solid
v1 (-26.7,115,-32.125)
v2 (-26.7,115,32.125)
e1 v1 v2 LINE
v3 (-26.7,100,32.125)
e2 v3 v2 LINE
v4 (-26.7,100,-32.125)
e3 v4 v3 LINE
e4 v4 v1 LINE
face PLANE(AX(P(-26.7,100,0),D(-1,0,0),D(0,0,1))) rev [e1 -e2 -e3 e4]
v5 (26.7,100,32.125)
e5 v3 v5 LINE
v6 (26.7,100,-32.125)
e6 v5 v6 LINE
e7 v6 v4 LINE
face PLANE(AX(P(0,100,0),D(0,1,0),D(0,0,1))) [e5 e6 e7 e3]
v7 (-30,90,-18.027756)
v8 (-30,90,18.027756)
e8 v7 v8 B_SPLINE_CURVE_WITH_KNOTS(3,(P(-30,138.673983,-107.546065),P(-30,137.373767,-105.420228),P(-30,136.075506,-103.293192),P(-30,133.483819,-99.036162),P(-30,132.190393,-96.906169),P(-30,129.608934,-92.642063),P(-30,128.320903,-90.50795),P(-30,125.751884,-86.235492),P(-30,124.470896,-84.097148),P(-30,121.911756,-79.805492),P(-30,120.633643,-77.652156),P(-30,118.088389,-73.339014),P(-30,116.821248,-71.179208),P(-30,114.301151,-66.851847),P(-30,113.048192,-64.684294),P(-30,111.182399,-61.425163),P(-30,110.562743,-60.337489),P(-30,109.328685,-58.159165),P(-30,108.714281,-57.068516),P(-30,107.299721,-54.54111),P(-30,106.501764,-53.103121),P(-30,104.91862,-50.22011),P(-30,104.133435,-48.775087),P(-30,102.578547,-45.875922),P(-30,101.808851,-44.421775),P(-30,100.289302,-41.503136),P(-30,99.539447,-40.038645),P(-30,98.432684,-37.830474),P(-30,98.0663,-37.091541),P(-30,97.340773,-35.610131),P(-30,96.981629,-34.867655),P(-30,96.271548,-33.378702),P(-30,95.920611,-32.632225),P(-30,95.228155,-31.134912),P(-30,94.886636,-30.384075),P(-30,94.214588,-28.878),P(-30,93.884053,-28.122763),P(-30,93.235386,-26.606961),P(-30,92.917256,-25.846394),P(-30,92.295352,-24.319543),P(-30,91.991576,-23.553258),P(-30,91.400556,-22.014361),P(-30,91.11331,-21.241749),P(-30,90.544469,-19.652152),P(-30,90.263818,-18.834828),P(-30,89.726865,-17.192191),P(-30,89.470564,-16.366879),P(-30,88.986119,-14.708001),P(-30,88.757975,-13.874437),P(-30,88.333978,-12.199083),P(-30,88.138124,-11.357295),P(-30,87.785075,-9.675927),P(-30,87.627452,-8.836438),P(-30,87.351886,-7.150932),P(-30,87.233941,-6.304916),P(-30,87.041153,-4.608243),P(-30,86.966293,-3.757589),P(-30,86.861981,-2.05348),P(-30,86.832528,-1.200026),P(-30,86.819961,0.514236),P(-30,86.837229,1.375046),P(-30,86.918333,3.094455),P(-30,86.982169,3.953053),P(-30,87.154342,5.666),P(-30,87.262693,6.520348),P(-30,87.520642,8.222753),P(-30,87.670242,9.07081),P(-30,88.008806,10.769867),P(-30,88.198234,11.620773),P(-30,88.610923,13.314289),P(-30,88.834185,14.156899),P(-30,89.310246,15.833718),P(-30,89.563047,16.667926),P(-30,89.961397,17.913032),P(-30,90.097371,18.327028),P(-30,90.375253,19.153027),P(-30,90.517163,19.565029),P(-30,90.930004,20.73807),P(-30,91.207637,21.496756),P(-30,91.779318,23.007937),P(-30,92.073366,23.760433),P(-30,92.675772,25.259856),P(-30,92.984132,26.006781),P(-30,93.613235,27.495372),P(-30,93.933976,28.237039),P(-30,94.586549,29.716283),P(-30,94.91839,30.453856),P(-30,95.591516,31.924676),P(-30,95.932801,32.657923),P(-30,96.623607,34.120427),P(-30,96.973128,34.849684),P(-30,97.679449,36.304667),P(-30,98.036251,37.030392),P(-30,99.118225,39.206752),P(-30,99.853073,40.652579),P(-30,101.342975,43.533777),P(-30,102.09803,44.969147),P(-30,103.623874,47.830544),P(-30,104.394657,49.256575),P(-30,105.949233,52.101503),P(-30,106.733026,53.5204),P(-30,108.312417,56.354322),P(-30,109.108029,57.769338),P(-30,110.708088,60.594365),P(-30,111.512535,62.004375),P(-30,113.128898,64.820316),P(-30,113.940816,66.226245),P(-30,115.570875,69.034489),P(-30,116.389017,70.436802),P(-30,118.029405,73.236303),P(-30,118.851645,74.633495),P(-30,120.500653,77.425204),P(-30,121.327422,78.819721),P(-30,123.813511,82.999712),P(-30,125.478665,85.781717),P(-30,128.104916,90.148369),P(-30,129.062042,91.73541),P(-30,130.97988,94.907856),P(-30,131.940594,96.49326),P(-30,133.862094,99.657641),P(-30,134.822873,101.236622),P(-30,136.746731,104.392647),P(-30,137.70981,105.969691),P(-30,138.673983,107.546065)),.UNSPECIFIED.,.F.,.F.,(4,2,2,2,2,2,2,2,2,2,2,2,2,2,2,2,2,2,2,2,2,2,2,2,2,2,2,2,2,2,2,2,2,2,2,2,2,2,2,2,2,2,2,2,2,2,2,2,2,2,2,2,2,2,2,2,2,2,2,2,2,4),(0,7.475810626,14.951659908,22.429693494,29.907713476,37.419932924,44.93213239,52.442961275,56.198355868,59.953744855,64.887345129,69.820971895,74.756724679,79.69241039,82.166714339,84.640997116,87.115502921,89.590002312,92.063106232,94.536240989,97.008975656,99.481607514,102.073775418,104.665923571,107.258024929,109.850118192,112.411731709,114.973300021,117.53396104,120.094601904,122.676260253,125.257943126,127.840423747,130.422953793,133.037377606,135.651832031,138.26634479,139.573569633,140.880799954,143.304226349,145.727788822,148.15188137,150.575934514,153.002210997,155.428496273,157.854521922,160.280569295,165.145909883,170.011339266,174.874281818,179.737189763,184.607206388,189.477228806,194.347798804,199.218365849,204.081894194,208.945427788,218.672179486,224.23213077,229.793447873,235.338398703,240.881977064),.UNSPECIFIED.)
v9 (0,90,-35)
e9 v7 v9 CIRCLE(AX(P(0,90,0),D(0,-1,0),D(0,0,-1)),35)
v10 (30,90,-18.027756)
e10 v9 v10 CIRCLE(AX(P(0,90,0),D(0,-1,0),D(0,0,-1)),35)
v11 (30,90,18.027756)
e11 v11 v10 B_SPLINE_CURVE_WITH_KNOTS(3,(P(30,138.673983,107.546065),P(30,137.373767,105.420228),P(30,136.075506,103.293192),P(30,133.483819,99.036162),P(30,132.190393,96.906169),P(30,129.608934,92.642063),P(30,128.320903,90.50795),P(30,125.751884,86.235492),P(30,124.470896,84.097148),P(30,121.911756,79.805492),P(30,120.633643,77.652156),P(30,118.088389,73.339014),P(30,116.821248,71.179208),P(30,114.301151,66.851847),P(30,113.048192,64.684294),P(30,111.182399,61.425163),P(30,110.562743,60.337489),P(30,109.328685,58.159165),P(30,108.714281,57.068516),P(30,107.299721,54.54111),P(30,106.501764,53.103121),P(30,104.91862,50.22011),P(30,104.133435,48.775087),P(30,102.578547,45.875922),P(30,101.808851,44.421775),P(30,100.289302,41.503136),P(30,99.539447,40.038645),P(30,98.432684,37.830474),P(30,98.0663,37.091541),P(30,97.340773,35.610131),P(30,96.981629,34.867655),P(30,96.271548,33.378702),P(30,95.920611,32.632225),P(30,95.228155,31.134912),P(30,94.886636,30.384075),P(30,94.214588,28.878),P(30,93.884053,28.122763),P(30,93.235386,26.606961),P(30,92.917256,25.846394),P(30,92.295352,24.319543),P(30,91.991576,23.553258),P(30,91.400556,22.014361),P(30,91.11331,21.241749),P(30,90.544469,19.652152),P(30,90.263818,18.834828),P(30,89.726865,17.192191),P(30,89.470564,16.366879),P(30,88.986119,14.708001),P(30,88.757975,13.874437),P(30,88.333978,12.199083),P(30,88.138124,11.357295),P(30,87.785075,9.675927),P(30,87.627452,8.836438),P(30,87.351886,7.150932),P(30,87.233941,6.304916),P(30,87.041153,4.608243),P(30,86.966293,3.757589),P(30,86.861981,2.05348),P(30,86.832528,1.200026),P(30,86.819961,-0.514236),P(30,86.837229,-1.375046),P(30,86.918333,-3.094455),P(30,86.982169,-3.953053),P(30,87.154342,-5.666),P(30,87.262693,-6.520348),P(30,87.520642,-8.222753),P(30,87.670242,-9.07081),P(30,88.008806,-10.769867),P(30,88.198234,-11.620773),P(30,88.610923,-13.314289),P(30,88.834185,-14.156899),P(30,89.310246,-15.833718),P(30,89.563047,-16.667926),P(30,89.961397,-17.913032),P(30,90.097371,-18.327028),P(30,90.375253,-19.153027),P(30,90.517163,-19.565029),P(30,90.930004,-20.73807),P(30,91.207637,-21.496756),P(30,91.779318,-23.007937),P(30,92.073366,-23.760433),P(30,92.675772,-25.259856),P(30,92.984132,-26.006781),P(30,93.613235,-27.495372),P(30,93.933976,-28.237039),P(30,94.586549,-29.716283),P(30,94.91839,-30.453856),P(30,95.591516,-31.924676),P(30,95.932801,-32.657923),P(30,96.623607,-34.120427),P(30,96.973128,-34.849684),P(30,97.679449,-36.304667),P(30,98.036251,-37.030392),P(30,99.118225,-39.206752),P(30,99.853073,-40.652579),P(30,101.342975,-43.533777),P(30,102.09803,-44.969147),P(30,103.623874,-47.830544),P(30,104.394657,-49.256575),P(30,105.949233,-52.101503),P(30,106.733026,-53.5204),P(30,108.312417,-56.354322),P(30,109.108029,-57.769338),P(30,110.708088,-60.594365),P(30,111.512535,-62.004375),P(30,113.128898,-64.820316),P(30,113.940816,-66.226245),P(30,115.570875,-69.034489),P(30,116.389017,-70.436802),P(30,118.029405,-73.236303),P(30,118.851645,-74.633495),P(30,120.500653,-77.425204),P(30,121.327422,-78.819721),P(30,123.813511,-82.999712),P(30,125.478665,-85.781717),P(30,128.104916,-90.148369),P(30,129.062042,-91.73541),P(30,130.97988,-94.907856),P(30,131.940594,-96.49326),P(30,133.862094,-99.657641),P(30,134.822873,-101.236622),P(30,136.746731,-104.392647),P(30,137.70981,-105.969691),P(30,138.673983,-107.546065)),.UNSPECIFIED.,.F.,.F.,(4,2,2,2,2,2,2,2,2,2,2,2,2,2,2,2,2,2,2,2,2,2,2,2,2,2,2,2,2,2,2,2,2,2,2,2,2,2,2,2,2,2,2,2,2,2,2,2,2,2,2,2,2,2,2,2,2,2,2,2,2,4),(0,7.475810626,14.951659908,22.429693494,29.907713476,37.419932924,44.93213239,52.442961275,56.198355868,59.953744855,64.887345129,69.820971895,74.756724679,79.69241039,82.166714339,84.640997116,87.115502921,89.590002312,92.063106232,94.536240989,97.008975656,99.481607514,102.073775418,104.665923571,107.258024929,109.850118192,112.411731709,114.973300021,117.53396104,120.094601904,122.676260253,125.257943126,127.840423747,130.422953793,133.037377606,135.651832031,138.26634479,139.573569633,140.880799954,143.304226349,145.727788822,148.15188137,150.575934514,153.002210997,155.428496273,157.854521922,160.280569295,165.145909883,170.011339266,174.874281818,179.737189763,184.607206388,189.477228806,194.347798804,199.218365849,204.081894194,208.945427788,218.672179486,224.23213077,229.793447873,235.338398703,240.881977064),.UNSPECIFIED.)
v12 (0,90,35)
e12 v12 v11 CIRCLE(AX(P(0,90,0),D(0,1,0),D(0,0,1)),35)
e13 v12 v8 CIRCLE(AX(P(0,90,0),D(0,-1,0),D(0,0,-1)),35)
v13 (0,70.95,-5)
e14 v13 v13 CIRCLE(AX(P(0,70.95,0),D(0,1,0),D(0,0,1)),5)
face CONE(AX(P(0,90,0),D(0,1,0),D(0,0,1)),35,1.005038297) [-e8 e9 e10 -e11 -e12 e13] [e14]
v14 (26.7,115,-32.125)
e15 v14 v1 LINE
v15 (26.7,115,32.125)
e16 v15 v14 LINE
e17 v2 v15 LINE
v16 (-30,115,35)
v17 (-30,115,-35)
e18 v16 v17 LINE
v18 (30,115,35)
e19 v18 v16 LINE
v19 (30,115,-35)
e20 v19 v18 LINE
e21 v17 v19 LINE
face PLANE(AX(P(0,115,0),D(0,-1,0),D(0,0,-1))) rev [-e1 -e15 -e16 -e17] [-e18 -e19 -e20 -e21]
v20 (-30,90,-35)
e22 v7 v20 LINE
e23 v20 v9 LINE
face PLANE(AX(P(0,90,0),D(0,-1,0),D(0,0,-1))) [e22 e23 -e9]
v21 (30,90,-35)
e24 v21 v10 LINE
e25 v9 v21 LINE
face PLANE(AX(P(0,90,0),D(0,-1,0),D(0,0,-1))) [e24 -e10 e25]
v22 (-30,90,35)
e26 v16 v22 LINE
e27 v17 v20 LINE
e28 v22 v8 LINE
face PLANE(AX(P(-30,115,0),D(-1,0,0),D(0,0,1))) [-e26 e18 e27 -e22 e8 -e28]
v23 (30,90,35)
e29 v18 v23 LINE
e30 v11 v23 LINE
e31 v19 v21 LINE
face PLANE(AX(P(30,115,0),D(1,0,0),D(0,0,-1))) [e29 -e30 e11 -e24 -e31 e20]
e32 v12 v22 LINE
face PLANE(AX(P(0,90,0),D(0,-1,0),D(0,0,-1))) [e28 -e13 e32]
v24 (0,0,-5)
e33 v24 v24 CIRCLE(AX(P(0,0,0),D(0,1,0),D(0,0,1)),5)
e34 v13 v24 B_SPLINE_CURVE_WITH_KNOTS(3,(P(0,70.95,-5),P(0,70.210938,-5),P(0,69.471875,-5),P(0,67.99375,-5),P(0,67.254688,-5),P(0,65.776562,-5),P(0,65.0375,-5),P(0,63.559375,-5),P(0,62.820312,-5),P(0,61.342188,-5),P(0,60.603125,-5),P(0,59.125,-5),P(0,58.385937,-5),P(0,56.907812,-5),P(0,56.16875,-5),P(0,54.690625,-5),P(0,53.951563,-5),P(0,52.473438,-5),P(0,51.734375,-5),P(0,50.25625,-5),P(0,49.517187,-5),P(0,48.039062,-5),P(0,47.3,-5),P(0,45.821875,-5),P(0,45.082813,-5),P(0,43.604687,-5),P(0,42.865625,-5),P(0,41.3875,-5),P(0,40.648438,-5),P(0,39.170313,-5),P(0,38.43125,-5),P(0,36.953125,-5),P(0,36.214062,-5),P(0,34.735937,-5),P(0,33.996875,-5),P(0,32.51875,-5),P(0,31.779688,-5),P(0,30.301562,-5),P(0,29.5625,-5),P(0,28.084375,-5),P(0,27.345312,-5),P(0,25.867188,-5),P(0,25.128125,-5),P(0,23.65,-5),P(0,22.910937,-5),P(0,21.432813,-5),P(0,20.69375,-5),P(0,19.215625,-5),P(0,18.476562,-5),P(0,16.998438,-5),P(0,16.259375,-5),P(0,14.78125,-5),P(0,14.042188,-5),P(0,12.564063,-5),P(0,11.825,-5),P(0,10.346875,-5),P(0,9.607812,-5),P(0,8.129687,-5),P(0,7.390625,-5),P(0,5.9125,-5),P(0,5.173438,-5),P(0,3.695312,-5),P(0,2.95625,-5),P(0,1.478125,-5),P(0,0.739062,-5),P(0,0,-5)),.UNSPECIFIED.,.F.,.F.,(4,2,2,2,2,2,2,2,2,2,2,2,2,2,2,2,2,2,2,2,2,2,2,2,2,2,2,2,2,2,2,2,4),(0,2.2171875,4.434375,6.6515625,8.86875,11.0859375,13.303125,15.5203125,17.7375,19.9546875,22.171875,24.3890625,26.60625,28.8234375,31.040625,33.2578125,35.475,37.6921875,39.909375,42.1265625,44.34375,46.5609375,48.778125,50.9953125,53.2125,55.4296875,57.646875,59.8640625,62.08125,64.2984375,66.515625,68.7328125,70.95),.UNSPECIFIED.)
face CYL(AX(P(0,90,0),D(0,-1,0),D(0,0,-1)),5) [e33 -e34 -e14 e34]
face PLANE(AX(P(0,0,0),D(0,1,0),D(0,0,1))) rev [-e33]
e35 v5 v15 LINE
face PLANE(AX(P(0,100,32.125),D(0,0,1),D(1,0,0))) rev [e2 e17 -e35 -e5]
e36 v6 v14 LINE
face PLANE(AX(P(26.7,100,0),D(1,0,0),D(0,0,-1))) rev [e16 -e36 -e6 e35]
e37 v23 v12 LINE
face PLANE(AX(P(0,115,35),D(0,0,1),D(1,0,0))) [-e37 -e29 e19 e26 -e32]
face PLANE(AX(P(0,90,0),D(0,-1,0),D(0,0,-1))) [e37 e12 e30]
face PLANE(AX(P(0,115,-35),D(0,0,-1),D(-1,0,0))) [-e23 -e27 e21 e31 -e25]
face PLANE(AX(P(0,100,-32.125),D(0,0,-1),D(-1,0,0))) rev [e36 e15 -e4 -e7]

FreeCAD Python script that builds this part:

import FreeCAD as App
import Part
import Sketcher
Q = App.Units.Quantity


def add_polygon(sketch, points):
    """Adds a closed chain of lines whose ends are joined by coincident constraints."""
    first, n = sketch.GeometryCount, len(points)
    for a, b in zip(points, points[1:] + points[:1]):
        sketch.addGeometry(Part.LineSegment(App.Vector(*a, 0), App.Vector(*b, 0)), False)
    for i in range(n):
        sketch.addConstraint(Sketcher.Constraint("Coincident", first + i, 2, first + (i + 1) % n, 1))

doc = App.newDocument("Part")
body = doc.addObject("PartDesign::Body", "Body")

# Sketch on XZ plane
sketch1 = body.newObject("Sketcher::SketchObject", "Sketch")
sketch1.AttachmentSupport = (doc.getObject("XZ_Plane"), [""])
sketch1.MapMode = "FlatFace"
sketch1.addGeometry(Part.Circle(App.Vector(0, 0, 0), App.Vector(0, 0, 1), 5), False)
sketch1.addConstraint(Sketcher.Constraint("Coincident", 0, 3, -1, 1))
sketch1.addConstraint(Sketcher.Constraint("Diameter", 0, Q("10 mm")))
pad1 = body.newObject("PartDesign::Pad", "Pad")
pad1.Profile = sketch1
pad1.Length = 90
pad1.Reversed = True

# Sketch on XZ plane
sketch2 = body.newObject("Sketcher::SketchObject", "Sketch001")
sketch2.AttachmentSupport = (doc.getObject("XZ_Plane"), [""])
sketch2.MapMode = "FlatFace"
sketch2.AttachmentOffset = App.Placement(App.Vector(0, 0, -90), App.Rotation())
add_polygon(sketch2, [(-30, -35), (-30, 35), (30, 35), (30, -35)])  # lines 0-3
sketch2.addConstraint(Sketcher.Constraint("Vertical", 0))
sketch2.addConstraint(Sketcher.Constraint("Horizontal", 1))
sketch2.addConstraint(Sketcher.Constraint("Vertical", 2))
sketch2.addConstraint(Sketcher.Constraint("Horizontal", 3))
sketch2.addConstraint(Sketcher.Constraint("Symmetric", 0, 2, 2, 2, -1, 1))
sketch2.addConstraint(Sketcher.Constraint("DistanceX", 1, 1, 1, 2, Q("60 mm")))
sketch2.addConstraint(Sketcher.Constraint("DistanceY", 0, 1, 0, 2, Q("70 mm")))
pad2 = body.newObject("PartDesign::Pad", "Pad001")
pad2.Profile = sketch2
pad2.Length = 25
pad2.Reversed = True

# Sketch on YZ plane
sketch3 = body.newObject("Sketcher::SketchObject", "Sketch002")
sketch3.AttachmentSupport = (doc.getObject("YZ_Plane"), [""])
sketch3.MapMode = "FlatFace"
add_polygon(sketch3, [(90, 35), (70.95, 5), (90, 5)])  # lines 0-2
sketch3.addConstraint(Sketcher.Constraint("Horizontal", 1))
sketch3.addConstraint(Sketcher.Constraint("Vertical", 2))
sketch3.addConstraint(Sketcher.Constraint("DistanceY", 2, 1, 2, 2, Q("30 mm")))
sketch3.addConstraint(Sketcher.Constraint("DistanceY", -1, 1, 0, 2, Q("5 mm")))
sketch3.addConstraint(Sketcher.Constraint("DistanceX", -1, 1, 1, 2, Q("90 mm")))
sketch3.addConstraint(Sketcher.Constraint("DistanceX", 1, 1, 1, 2, Q("19.05 mm")))
revolution = body.newObject("PartDesign::Revolution", "Revolution")
revolution.Profile = sketch3
revolution.ReferenceAxis = (sketch3, ["H_Axis"])
revolution.Angle = 360

# Sketch on XZ plane
sketch4 = body.newObject("Sketcher::SketchObject", "Sketch003")
sketch4.AttachmentSupport = (doc.getObject("XZ_Plane"), [""])
sketch4.MapMode = "FlatFace"
add_polygon(sketch4, [(-38.493983, -39.653877), (-38.493983, 39.653877), (38.493983, 39.653877), (38.493983, -39.653877)])  # lines 0-3
add_polygon(sketch4, [(30, 35), (-30, 35), (-30, -35), (30, -35)])  # lines 4-7
sketch4.addConstraint(Sketcher.Constraint("Vertical", 0))
sketch4.addConstraint(Sketcher.Constraint("Horizontal", 1))
sketch4.addConstraint(Sketcher.Constraint("Vertical", 2))
sketch4.addConstraint(Sketcher.Constraint("Horizontal", 3))
sketch4.addConstraint(Sketcher.Constraint("Horizontal", 4))
sketch4.addConstraint(Sketcher.Constraint("Vertical", 5))
sketch4.addConstraint(Sketcher.Constraint("Horizontal", 6))
sketch4.addConstraint(Sketcher.Constraint("Vertical", 7))
sketch4.addConstraint(Sketcher.Constraint("Symmetric", 0, 2, 2, 2, -1, 1))
sketch4.addConstraint(Sketcher.Constraint("Symmetric", 4, 2, 6, 2, -1, 1))
sketch4.addConstraint(Sketcher.Constraint("DistanceX", 4, 2, 4, 1, Q("60 mm")))
sketch4.addConstraint(Sketcher.Constraint("DistanceY", 5, 2, 5, 1, Q("70 mm")))
sketch4.addConstraint(Sketcher.Constraint("DistanceX", 1, 1, 1, 2, Q("76.987965 mm")))
sketch4.addConstraint(Sketcher.Constraint("DistanceY", 0, 1, 0, 2, Q("79.307753 mm")))
pocket1 = body.newObject("PartDesign::Pocket", "Pocket")
pocket1.Profile = sketch4
pocket1.Type = "ThroughAll"
pocket1.Midplane = True

# Sketch on XZ plane
sketch5 = body.newObject("Sketcher::SketchObject", "Sketch004")
sketch5.AttachmentSupport = (doc.getObject("XZ_Plane"), [""])
sketch5.MapMode = "FlatFace"
sketch5.AttachmentOffset = App.Placement(App.Vector(0, 0, -115), App.Rotation())
add_polygon(sketch5, [(-26.7, -32.125), (-26.7, 32.125), (26.7, 32.125), (26.7, -32.125)])  # lines 0-3
sketch5.addConstraint(Sketcher.Constraint("Vertical", 0))
sketch5.addConstraint(Sketcher.Constraint("Horizontal", 1))
sketch5.addConstraint(Sketcher.Constraint("Vertical", 2))
sketch5.addConstraint(Sketcher.Constraint("Horizontal", 3))
sketch5.addConstraint(Sketcher.Constraint("Symmetric", 0, 2, 2, 2, -1, 1))
sketch5.addConstraint(Sketcher.Constraint("DistanceX", 1, 1, 1, 2, Q("53.4 mm")))
sketch5.addConstraint(Sketcher.Constraint("DistanceY", 0, 1, 0, 2, Q("64.25 mm")))
pocket2 = body.newObject("PartDesign::Pocket", "Pocket001")
pocket2.Profile = sketch5
pocket2.Length = 15
pocket2.Reversed = True

doc.recompute()
